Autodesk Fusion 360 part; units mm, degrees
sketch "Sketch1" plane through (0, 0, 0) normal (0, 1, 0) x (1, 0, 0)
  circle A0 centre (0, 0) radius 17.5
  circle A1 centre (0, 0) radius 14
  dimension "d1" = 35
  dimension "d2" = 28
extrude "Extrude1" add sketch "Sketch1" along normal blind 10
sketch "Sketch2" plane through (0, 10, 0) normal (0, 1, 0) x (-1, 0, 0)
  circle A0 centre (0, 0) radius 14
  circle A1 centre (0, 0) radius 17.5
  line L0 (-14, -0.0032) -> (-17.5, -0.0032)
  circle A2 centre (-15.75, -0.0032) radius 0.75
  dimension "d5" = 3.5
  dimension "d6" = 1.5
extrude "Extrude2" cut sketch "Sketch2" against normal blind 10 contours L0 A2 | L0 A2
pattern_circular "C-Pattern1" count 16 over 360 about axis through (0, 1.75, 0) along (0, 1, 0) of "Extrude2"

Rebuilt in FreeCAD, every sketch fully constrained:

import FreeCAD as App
import Part
import Sketcher
Q = App.Units.Quantity

doc = App.newDocument("Part")
body = doc.addObject("PartDesign::Body", "Body")

# Sketch on XZ plane
sketch1 = body.newObject("Sketcher::SketchObject", "Sketch")
sketch1.AttachmentSupport = (doc.getObject("XZ_Plane"), [""])
sketch1.MapMode = "FlatFace"
sketch1.addGeometry([
    Part.Circle(App.Vector(0, 0, 0), App.Vector(0, 0, 1), 18),
    Part.Circle(App.Vector(0, 0, 0), App.Vector(0, 0, 1), 14),
], False)
sketch1.addConstraint([
    Sketcher.Constraint("Coincident", 0, 3, -1, 1),
    Sketcher.Constraint("Coincident", 1, 3, -1, 1),
    Sketcher.Constraint("Diameter", 0, Q("35 mm")),
    Sketcher.Constraint("Diameter", 1, Q("28 mm")),
])
pad1 = body.newObject("PartDesign::Pad", "Pad")
pad1.Profile = sketch1
pad1.Length = 10
pad1.Reversed = True

# Sketch on XZ plane
sketch2 = body.newObject("Sketcher::SketchObject", "Sketch001")
sketch2.AttachmentSupport = (doc.getObject("XZ_Plane"), [""])
sketch2.MapMode = "FlatFace"
sketch2.AttachmentOffset = App.Placement(App.Vector(0, 0, -10), App.Rotation())
sketch2.addGeometry(Part.Circle(App.Vector(15.8, 0, 0), App.Vector(0, 0, 1), 0.8), False)
sketch2.addConstraint([
    Sketcher.Constraint("Diameter", 0, Q("1.5 mm")),
    Sketcher.Constraint("DistanceX", -1, 1, 0, 3, Q("15.75 mm")),
    Sketcher.Constraint("DistanceY", 0, 3, -1, 1, Q("0.0032 mm")),
])
pocket1 = body.newObject("PartDesign::Pocket", "Pocket")
pocket1.Profile = sketch2
pocket1.Length = 10
pocket1.Reversed = True
doc.recompute()

polarpattern = body.newObject("PartDesign::PolarPattern", "PolarPattern")
polarpattern.Originals = [pocket1]
polarpattern.Axis = (doc.getObject("Y_Axis"), [""])
polarpattern.Angle = 360
polarpattern.Occurrences = 16
body.Tip = polarpattern

doc.recompute()
